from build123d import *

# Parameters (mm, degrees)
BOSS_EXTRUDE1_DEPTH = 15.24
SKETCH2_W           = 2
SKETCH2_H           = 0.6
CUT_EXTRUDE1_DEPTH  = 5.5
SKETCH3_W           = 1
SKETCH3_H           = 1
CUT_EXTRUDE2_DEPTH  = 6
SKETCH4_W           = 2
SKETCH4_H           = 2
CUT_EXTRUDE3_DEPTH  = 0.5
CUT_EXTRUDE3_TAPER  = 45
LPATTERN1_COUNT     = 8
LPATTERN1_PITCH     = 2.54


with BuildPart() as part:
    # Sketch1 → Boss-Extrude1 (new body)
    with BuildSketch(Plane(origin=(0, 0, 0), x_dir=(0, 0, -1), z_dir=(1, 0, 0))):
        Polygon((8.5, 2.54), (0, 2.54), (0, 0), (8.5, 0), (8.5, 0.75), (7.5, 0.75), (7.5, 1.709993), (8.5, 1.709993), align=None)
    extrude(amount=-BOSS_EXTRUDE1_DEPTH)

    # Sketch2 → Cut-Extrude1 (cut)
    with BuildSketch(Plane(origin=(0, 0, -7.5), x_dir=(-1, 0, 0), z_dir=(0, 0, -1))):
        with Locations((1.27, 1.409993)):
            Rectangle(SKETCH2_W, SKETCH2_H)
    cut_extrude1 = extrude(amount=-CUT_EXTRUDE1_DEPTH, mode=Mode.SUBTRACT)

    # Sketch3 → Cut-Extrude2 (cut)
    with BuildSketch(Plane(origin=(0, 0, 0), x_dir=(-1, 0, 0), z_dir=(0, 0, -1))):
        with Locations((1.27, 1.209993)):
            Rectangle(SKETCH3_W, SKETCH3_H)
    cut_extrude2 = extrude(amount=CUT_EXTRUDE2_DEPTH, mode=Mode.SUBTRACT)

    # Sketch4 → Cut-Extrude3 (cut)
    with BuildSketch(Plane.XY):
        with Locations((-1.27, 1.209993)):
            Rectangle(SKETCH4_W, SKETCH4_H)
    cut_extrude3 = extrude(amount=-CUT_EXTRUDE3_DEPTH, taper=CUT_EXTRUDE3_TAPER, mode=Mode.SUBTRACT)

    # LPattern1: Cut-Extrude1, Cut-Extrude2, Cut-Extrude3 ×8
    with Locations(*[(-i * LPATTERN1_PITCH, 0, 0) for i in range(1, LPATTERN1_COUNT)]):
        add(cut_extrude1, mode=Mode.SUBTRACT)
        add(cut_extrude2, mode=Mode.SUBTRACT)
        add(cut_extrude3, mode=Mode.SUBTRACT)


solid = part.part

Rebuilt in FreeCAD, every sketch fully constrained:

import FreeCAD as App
import Part
import Sketcher
from FreeCAD import Vector

doc = App.newDocument("Part")
body = doc.addObject("PartDesign::Body", "Body")

sketch1 = doc.addObject("Sketcher::SketchObject", "Sketch")
body.addObject(sketch1)
sketch1.AttachmentSupport = (doc.YZ_Plane, [""])
sketch1.MapMode = "FlatFace"
sketch1.addGeometry([
    Part.LineSegment(Vector(2.5, -8.5, 0), Vector(2.5, 0, 0)),
    Part.LineSegment(Vector(2.5, 0, 0), Vector(0, 0, 0)),
    Part.LineSegment(Vector(0, 0, 0), Vector(0, -8.5, 0)),
    Part.LineSegment(Vector(0, -8.5, 0), Vector(0.8, -8.5, 0)),
    Part.LineSegment(Vector(0.8, -8.5, 0), Vector(0.8, -7.5, 0)),
    Part.LineSegment(Vector(0.8, -7.5, 0), Vector(1.7, -7.5, 0)),
    Part.LineSegment(Vector(1.7, -7.5, 0), Vector(1.7, -8.5, 0)),
    Part.LineSegment(Vector(1.7, -8.5, 0), Vector(2.5, -8.5, 0)),
], False)
sketch1.addConstraint([
    Sketcher.Constraint("Coincident", 0, 2, 1, 1),
    Sketcher.Constraint("Coincident", 1, 2, 2, 1),
    Sketcher.Constraint("Coincident", 2, 2, 3, 1),
    Sketcher.Constraint("Coincident", 3, 2, 4, 1),
    Sketcher.Constraint("Coincident", 4, 2, 5, 1),
    Sketcher.Constraint("Coincident", 5, 2, 6, 1),
    Sketcher.Constraint("Coincident", 6, 2, 7, 1),
    Sketcher.Constraint("Coincident", 7, 2, 0, 1),
    Sketcher.Constraint("Vertical", 0),
    Sketcher.Constraint("Horizontal", 1),
    Sketcher.Constraint("Vertical", 2),
    Sketcher.Constraint("Horizontal", 3),
    Sketcher.Constraint("Vertical", 4),
    Sketcher.Constraint("Horizontal", 5),
    Sketcher.Constraint("Vertical", 6),
    Sketcher.Constraint("Horizontal", 7),
    Sketcher.Constraint("Coincident", 1, 2, -1, 1),
    Sketcher.Constraint("Horizontal", 3, 2, 6, 2),
    Sketcher.Constraint("DistanceY", 4, 1, 4, 2, 1.0),
    Sketcher.Constraint("DistanceY", 0, 1, 0, 2, 8.5),
    Sketcher.Constraint("DistanceX", 1, 2, 1, 1, 2.54),
    Sketcher.Constraint("DistanceX", 3, 1, 3, 2, 0.75),
    Sketcher.Constraint("DistanceX", 5, 1, 5, 2, 0.959993),
])
pad1 = doc.addObject("PartDesign::Pad", "Pad")
body.addObject(pad1)
pad1.Profile = sketch1
pad1.Length = 15.24
pad1.Reversed = True

sketch2 = doc.addObject("Sketcher::SketchObject", "Sketch001")
body.addObject(sketch2)
sketch2.AttachmentSupport = (doc.XY_Plane, [""])
sketch2.MapMode = "FlatFace"
sketch2.AttachmentOffset = App.Placement(Vector(0, 0, -7.5), App.Rotation())
sketch2.addGeometry([
    Part.LineSegment(Vector(-0.3, 1.7, 0), Vector(-0.3, 1.1, 0)),
    Part.LineSegment(Vector(-0.3, 1.1, 0), Vector(-2.3, 1.1, 0)),
    Part.LineSegment(Vector(-2.3, 1.1, 0), Vector(-2.3, 1.7, 0)),
    Part.LineSegment(Vector(-2.3, 1.7, 0), Vector(-0.3, 1.7, 0)),
], False)
sketch2.addConstraint([
    Sketcher.Constraint("Coincident", 0, 2, 1, 1),
    Sketcher.Constraint("Coincident", 1, 2, 2, 1),
    Sketcher.Constraint("Coincident", 2, 2, 3, 1),
    Sketcher.Constraint("Coincident", 3, 2, 0, 1),
    Sketcher.Constraint("Vertical", 0),
    Sketcher.Constraint("Horizontal", 1),
    Sketcher.Constraint("Vertical", 2),
    Sketcher.Constraint("Horizontal", 3),
    Sketcher.Constraint("DistanceX", 1, 2, 1, 1, 2.0),
    Sketcher.Constraint("DistanceY", 0, 2, 0, 1, 0.6),
    Sketcher.Constraint("DistanceX", 0, 2, -1, 1, 0.27),
    Sketcher.Constraint("DistanceY", -1, 1, 0, 2, 1.109993),
])
pocket1 = doc.addObject("PartDesign::Pocket", "Pocket")
body.addObject(pocket1)
pocket1.Profile = sketch2
pocket1.Length = 5.5
pocket1.Reversed = True

sketch3 = doc.addObject("Sketcher::SketchObject", "Sketch002")
body.addObject(sketch3)
sketch3.AttachmentSupport = (doc.XY_Plane, [""])
sketch3.MapMode = "FlatFace"
sketch3.addGeometry([
    Part.LineSegment(Vector(-0.8, 1.7, 0), Vector(-0.8, 0.7, 0)),
    Part.LineSegment(Vector(-0.8, 0.7, 0), Vector(-1.8, 0.7, 0)),
    Part.LineSegment(Vector(-1.8, 0.7, 0), Vector(-1.8, 1.7, 0)),
    Part.LineSegment(Vector(-1.8, 1.7, 0), Vector(-0.8, 1.7, 0)),
], False)
sketch3.addConstraint([
    Sketcher.Constraint("Coincident", 0, 2, 1, 1),
    Sketcher.Constraint("Coincident", 1, 2, 2, 1),
    Sketcher.Constraint("Coincident", 2, 2, 3, 1),
    Sketcher.Constraint("Coincident", 3, 2, 0, 1),
    Sketcher.Constraint("Vertical", 0),
    Sketcher.Constraint("Horizontal", 1),
    Sketcher.Constraint("Vertical", 2),
    Sketcher.Constraint("Horizontal", 3),
    Sketcher.Constraint("Equal", 3, 0),
    Sketcher.Constraint("DistanceX", 1, 2, 1, 1, 1.0),
    Sketcher.Constraint("DistanceX", 0, 2, -1, 1, 0.77),
    Sketcher.Constraint("DistanceY", -1, 1, 0, 2, 0.709993),
])
pocket2 = doc.addObject("PartDesign::Pocket", "Pocket001")
body.addObject(pocket2)
pocket2.Profile = sketch3
pocket2.Length = 6

sketch4 = doc.addObject("Sketcher::SketchObject", "Sketch003")
body.addObject(sketch4)
sketch4.AttachmentSupport = (doc.XY_Plane, [""])
sketch4.MapMode = "FlatFace"
sketch4.addGeometry([
    Part.LineSegment(Vector(-2.3, 2.2, 0), Vector(-2.3, 0.2, 0)),
    Part.LineSegment(Vector(-2.3, 0.2, 0), Vector(-0.3, 0.2, 0)),
    Part.LineSegment(Vector(-0.3, 0.2, 0), Vector(-0.3, 2.2, 0)),
    Part.LineSegment(Vector(-0.3, 2.2, 0), Vector(-2.3, 2.2, 0)),
], False)
sketch4.addConstraint([
    Sketcher.Constraint("Coincident", 0, 2, 1, 1),
    Sketcher.Constraint("Coincident", 1, 2, 2, 1),
    Sketcher.Constraint("Coincident", 2, 2, 3, 1),
    Sketcher.Constraint("Coincident", 3, 2, 0, 1),
    Sketcher.Constraint("Vertical", 0),
    Sketcher.Constraint("Horizontal", 1),
    Sketcher.Constraint("Vertical", 2),
    Sketcher.Constraint("Horizontal", 3),
    Sketcher.Constraint("Equal", 3, 0),
    Sketcher.Constraint("DistanceX", 1, 1, 1, 2, 2.0),
    Sketcher.Constraint("DistanceX", 0, 2, -1, 1, 2.27),
    Sketcher.Constraint("DistanceY", -1, 1, 0, 2, 0.209993),
])
pocket3 = doc.addObject("PartDesign::Pocket", "Pocket002")
body.addObject(pocket3)
pocket3.Profile = sketch4
pocket3.Length = 0.5
pocket3.TaperAngle = -45
doc.recompute()

linearpattern = doc.addObject("PartDesign::LinearPattern", "LinearPattern")
body.addObject(linearpattern)
linearpattern.Originals = [pocket1, pocket2, pocket3]
linearpattern.Direction = (doc.X_Axis, [""])
linearpattern.Mode = "offset"
linearpattern.Offset = 2.54
linearpattern.Occurrences = 8
linearpattern.Reversed = True
body.Tip = linearpattern

doc.recompute()
